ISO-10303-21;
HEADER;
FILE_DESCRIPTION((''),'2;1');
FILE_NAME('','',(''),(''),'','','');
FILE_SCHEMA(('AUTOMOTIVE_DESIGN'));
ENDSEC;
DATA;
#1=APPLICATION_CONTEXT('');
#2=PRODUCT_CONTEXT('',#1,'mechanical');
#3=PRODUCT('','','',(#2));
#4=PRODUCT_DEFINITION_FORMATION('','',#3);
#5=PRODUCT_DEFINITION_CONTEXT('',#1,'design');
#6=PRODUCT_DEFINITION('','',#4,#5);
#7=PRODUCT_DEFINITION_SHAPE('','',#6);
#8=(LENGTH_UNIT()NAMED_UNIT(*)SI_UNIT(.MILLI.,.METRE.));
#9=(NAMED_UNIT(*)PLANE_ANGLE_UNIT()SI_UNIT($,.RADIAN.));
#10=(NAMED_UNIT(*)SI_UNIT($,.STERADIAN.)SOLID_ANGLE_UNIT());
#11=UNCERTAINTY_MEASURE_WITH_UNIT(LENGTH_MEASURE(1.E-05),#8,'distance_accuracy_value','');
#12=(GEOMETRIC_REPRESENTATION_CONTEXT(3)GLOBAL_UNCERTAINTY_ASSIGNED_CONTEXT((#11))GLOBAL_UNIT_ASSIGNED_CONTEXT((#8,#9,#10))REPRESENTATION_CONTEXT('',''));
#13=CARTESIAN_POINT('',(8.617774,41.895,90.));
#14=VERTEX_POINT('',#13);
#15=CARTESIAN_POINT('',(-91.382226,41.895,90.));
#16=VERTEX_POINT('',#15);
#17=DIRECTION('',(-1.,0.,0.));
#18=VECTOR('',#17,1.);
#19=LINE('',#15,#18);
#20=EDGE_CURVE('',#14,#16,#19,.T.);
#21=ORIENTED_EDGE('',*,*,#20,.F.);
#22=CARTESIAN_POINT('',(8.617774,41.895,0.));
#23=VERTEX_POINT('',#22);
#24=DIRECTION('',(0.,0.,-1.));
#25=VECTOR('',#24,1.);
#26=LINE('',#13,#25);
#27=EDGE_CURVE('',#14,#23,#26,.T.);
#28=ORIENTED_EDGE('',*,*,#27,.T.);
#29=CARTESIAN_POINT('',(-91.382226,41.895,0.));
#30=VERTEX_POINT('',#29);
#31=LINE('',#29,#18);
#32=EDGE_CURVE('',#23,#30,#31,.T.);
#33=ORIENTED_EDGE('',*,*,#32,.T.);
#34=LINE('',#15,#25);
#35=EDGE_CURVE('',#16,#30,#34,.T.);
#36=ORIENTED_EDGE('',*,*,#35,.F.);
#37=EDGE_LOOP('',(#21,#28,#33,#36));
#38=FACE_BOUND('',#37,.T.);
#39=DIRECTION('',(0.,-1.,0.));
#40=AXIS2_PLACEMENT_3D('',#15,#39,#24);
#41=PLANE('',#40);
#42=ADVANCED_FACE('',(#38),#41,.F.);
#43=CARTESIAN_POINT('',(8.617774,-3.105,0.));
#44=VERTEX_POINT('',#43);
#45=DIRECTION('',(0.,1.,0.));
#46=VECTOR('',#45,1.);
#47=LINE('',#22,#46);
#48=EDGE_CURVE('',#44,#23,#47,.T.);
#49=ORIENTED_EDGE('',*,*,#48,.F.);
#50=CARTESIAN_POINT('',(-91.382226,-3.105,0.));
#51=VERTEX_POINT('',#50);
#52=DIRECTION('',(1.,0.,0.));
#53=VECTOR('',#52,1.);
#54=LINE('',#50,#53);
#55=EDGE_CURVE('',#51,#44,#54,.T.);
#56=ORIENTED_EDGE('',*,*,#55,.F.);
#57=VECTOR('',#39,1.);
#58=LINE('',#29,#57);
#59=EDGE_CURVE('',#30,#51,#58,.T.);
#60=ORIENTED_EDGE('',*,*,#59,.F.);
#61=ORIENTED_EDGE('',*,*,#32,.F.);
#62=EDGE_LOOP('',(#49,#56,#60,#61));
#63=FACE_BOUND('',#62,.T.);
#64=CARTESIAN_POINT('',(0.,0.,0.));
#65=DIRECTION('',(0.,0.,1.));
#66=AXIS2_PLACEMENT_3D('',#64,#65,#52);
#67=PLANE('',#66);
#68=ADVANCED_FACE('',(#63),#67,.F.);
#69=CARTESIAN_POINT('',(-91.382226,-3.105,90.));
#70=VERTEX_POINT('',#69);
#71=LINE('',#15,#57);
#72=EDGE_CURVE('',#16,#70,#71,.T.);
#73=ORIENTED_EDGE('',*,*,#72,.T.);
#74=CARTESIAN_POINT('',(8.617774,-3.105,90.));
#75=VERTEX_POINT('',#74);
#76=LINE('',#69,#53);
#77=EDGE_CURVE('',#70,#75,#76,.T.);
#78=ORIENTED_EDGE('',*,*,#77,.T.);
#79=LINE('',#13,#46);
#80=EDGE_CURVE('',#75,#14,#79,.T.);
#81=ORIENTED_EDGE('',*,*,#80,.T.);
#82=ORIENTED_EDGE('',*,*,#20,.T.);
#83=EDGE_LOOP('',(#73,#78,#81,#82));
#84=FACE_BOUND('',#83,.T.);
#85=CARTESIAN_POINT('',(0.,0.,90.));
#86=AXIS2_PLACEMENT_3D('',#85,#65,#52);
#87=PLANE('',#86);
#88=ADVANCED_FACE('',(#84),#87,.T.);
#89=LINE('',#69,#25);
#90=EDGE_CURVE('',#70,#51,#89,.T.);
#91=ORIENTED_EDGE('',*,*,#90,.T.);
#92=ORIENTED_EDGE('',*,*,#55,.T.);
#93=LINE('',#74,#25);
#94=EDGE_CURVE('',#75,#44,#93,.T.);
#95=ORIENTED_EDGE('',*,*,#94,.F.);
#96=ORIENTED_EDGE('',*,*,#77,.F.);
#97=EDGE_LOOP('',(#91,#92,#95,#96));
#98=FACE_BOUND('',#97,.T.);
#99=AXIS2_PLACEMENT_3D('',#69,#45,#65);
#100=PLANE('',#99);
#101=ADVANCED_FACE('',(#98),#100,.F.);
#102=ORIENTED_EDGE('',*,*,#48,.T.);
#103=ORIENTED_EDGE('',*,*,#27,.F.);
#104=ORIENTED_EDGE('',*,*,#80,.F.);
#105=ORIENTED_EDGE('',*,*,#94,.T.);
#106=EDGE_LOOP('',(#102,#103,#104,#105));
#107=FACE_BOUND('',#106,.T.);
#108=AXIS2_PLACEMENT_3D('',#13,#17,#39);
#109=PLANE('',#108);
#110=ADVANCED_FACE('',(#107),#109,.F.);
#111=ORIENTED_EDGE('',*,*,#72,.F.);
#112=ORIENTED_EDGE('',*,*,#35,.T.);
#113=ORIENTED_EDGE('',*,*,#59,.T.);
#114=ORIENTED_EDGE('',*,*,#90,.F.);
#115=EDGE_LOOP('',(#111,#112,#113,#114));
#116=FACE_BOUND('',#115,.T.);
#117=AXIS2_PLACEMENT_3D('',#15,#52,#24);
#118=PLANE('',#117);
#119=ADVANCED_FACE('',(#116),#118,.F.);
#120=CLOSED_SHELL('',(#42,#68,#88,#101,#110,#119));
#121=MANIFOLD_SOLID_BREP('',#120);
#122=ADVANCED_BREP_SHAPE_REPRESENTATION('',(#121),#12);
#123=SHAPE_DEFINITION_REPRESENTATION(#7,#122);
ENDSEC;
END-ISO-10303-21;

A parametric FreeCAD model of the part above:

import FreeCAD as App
import Part
import Sketcher

V = App.Vector


def add_polygon(sketch, points):
    """Adds a closed chain of lines whose ends are joined by coincident constraints."""
    first, n = sketch.GeometryCount, len(points)
    for a, b in zip(points, points[1:] + points[:1]):
        sketch.addGeometry(Part.LineSegment(App.Vector(*a, 0), App.Vector(*b, 0)), False)
    for i in range(n):
        sketch.addConstraint(Sketcher.Constraint("Coincident", first + i, 2, first + (i + 1) % n, 1))

doc = App.newDocument("Part")
body = doc.addObject("PartDesign::Body", "Body")

# Sketch on XY plane
sketch1 = body.newObject("Sketcher::SketchObject", "Sketch")
sketch1.AttachmentSupport = (doc.getObject("XY_Plane"), [""])
sketch1.MapMode = "FlatFace"
add_polygon(sketch1, [(-91, 42), (-91, -3), (9, -3), (9, 42)])  # lines 0-3
sketch1.addConstraint(Sketcher.Constraint("Vertical", 0))
sketch1.addConstraint(Sketcher.Constraint("Horizontal", 1))
sketch1.addConstraint(Sketcher.Constraint("Vertical", 2))
sketch1.addConstraint(Sketcher.Constraint("Horizontal", 3))
sketch1.addConstraint(Sketcher.Constraint("DistanceX", 1, 1, 1, 2, 100.0))
sketch1.addConstraint(Sketcher.Constraint("DistanceY", 0, 2, 0, 1, 45.0))
sketch1.addConstraint(Sketcher.Constraint("DistanceY", 0, 2, -1, 1, 3.105))
sketch1.addConstraint(Sketcher.Constraint("DistanceX", 0, 2, -1, 1, 91.382226))
pad1 = body.newObject("PartDesign::Pad", "Pad")
pad1.Profile = sketch1
pad1.Length = 90

doc.recompute()
